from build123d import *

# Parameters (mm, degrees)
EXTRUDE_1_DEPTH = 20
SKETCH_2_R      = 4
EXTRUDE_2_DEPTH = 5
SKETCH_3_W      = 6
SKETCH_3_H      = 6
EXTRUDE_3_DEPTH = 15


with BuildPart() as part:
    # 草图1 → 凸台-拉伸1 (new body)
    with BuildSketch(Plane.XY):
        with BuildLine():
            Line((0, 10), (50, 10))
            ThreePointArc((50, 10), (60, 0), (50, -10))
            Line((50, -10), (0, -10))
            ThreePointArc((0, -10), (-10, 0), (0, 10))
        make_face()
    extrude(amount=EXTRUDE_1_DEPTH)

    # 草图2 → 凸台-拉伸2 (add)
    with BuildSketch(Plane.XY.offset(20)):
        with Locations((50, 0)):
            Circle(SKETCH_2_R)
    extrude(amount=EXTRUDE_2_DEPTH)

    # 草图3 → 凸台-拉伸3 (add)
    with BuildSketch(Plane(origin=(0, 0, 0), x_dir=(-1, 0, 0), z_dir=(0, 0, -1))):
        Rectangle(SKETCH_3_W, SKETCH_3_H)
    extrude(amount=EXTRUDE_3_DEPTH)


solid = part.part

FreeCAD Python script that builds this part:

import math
import FreeCAD as App
import Part
import Sketcher

V = App.Vector

doc = App.newDocument("Part")
body = doc.addObject("PartDesign::Body", "Body")

sketch1 = body.newObject("Sketcher::SketchObject", "Sketch")
sketch1.AttachmentSupport = (doc.getObject("XY_Plane"), [""])
sketch1.MapMode = "FlatFace"
sketch1.addGeometry(Part.LineSegment(V(50, 10, 0), V(0, 10, 0)), False)
sketch1.addGeometry(Part.ArcOfCircle(Part.Circle(V(0, 0, 0), V(0, 0, 1), 10), math.radians(90), math.radians(270)), False)
sketch1.addGeometry(Part.LineSegment(V(0, -10, 0), V(50, -10, 0)), False)
sketch1.addGeometry(Part.ArcOfCircle(Part.Circle(V(50, 0, 0), V(0, 0, 1), 10), math.radians(-90), math.radians(90)), False)
sketch1.addConstraint(Sketcher.Constraint("Tangent", 0, 2, 1, 1))
sketch1.addConstraint(Sketcher.Constraint("Tangent", 1, 2, 2, 1))
sketch1.addConstraint(Sketcher.Constraint("Tangent", 2, 2, 3, 1))
sketch1.addConstraint(Sketcher.Constraint("Tangent", 3, 2, 0, 1))
sketch1.addConstraint(Sketcher.Constraint("Horizontal", 0))
sketch1.addConstraint(Sketcher.Constraint("Horizontal", 2))
sketch1.addConstraint(Sketcher.Constraint("Coincident", 1, 3, -1, 1))
sketch1.addConstraint(Sketcher.Constraint("Radius", 1, 10.0))
sketch1.addConstraint(Sketcher.Constraint("DistanceX", 0, 2, 0, 1, 50.0))
pad1 = body.newObject("PartDesign::Pad", "Pad")
pad1.Profile = sketch1
pad1.Length = 20

sketch2 = body.newObject("Sketcher::SketchObject", "Sketch001")
sketch2.AttachmentSupport = (doc.getObject("XY_Plane"), [""])
sketch2.MapMode = "FlatFace"
sketch2.AttachmentOffset = App.Placement(V(0, 0, 20), App.Rotation())
sketch2.addGeometry(Part.Circle(V(50, 0, 0), V(0, 0, 1), 4), False)
sketch2.addConstraint(Sketcher.Constraint("PointOnObject", 0, 3, -1))
sketch2.addConstraint(Sketcher.Constraint("Diameter", 0, 8.0))
sketch2.addConstraint(Sketcher.Constraint("DistanceX", -1, 1, 0, 3, 50.0))
pad2 = body.newObject("PartDesign::Pad", "Pad001")
pad2.Profile = sketch2
pad2.Length = 5

sketch3 = body.newObject("Sketcher::SketchObject", "Sketch002")
sketch3.AttachmentSupport = (doc.getObject("XY_Plane"), [""])
sketch3.MapMode = "FlatFace"
sketch3.addGeometry(Part.LineSegment(V(3, 3, 0), V(3, -3, 0)), False)
sketch3.addGeometry(Part.LineSegment(V(3, -3, 0), V(-3, -3, 0)), False)
sketch3.addGeometry(Part.LineSegment(V(-3, -3, 0), V(-3, 3, 0)), False)
sketch3.addGeometry(Part.LineSegment(V(-3, 3, 0), V(3, 3, 0)), False)
sketch3.addConstraint(Sketcher.Constraint("Coincident", 0, 2, 1, 1))
sketch3.addConstraint(Sketcher.Constraint("Coincident", 1, 2, 2, 1))
sketch3.addConstraint(Sketcher.Constraint("Coincident", 2, 2, 3, 1))
sketch3.addConstraint(Sketcher.Constraint("Coincident", 3, 2, 0, 1))
sketch3.addConstraint(Sketcher.Constraint("Vertical", 0))
sketch3.addConstraint(Sketcher.Constraint("Horizontal", 1))
sketch3.addConstraint(Sketcher.Constraint("Vertical", 2))
sketch3.addConstraint(Sketcher.Constraint("Horizontal", 3))
sketch3.addConstraint(Sketcher.Constraint("Symmetric", 0, 2, 2, 2, -1, 1))
sketch3.addConstraint(Sketcher.Constraint("Equal", 3, 0))
sketch3.addConstraint(Sketcher.Constraint("DistanceX", 1, 2, 1, 1, 6.0))
pad3 = body.newObject("PartDesign::Pad", "Pad002")
pad3.Profile = sketch3
pad3.Length = 15
pad3.Reversed = True

doc.recompute()
